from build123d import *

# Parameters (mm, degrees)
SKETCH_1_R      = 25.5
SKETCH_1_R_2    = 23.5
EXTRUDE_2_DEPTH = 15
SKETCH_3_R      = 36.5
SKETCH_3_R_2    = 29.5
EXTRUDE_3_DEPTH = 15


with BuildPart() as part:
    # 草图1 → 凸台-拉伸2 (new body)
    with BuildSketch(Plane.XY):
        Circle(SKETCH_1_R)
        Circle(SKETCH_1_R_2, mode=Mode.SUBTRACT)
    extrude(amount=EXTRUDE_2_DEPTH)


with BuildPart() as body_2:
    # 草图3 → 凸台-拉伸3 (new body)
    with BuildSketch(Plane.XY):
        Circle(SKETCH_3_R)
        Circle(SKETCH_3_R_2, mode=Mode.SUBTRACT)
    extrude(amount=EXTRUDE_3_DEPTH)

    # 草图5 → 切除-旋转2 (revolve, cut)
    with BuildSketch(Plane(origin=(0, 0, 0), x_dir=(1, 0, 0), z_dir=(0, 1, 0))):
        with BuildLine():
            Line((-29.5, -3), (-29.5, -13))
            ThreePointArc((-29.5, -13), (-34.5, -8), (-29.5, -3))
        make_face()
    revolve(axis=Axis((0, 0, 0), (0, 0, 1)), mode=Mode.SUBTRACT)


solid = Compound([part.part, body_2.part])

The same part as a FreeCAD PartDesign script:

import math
import FreeCAD as App
import Part
import Sketcher
Q = App.Units.Quantity

doc = App.newDocument("Part")
params = doc.addObject("Spreadsheet::Sheet", "Params")
for row, (alias, value) in enumerate([
    ("sketch1_diameter", "51 mm"),
    ("sketch1_diameter2", "47 mm"),
    ("pad1_length", "15 mm"),
    ("sketch2_diameter", "73 mm"),
    ("sketch2_diameter2", "59 mm"),
    ("pad2_length", "15 mm"),
    ("sketch3_radius", "5 mm"),
    ("groove_angle", "360 deg"),
], start=1):
    params.set(f"A{row}", alias)
    params.set(f"B{row}", "=" + value)
    params.setAlias(f"B{row}", alias)

body = doc.addObject("PartDesign::Body", "Body")

# Sketch on XY plane
sketch1 = body.newObject("Sketcher::SketchObject", "Sketch")
sketch1.AttachmentSupport = (doc.getObject("XY_Plane"), [""])
sketch1.MapMode = "FlatFace"
sketch1.addGeometry([
    Part.Circle(App.Vector(0, 0, 0), App.Vector(0, 0, 1), 26),
    Part.Circle(App.Vector(0, 0, 0), App.Vector(0, 0, 1), 24),
], False)
sketch1.addConstraint([
    Sketcher.Constraint("Coincident", 0, 3, -1, 1),
    Sketcher.Constraint("Coincident", 1, 3, -1, 1),
    Sketcher.Constraint("Diameter", 0, Q("51 mm")),
    Sketcher.Constraint("Diameter", 1, Q("47 mm")),
])
sketch1.setExpression("Constraints[2]", "Params.sketch1_diameter")
sketch1.setExpression("Constraints[3]", "Params.sketch1_diameter2")
pad1 = body.newObject("PartDesign::Pad", "Pad")
pad1.Profile = sketch1
pad1.setExpression("Length", "Params.pad1_length")
body2 = doc.addObject("PartDesign::Body", "Body001")

# Sketch on XY plane
sketch2 = body2.newObject("Sketcher::SketchObject", "Sketch001")
sketch2.AttachmentSupport = (doc.getObject("XY_Plane001"), [""])
sketch2.MapMode = "FlatFace"
sketch2.addGeometry([
    Part.Circle(App.Vector(0, 0, 0), App.Vector(0, 0, 1), 36),
    Part.Circle(App.Vector(0, 0, 0), App.Vector(0, 0, 1), 30),
], False)
sketch2.addConstraint([
    Sketcher.Constraint("Coincident", 0, 3, -1, 1),
    Sketcher.Constraint("Coincident", 1, 3, -1, 1),
    Sketcher.Constraint("Diameter", 0, Q("73 mm")),
    Sketcher.Constraint("Diameter", 1, Q("59 mm")),
])
sketch2.setExpression("Constraints[2]", "Params.sketch2_diameter")
sketch2.setExpression("Constraints[3]", "Params.sketch2_diameter2")
pad2 = body2.newObject("PartDesign::Pad", "Pad001")
pad2.Profile = sketch2
pad2.setExpression("Length", "Params.pad2_length")

# Sketch on XZ plane
sketch3 = body2.newObject("Sketcher::SketchObject", "Sketch002")
sketch3.AttachmentSupport = (doc.getObject("XZ_Plane001"), [""])
sketch3.MapMode = "FlatFace"
sketch3.addGeometry([
    Part.LineSegment(App.Vector(-30, 13, 0), App.Vector(-30, 3, 0)),
    Part.ArcOfCircle(Part.Circle(App.Vector(-30, 8, 0), App.Vector(0, 0, 1), 5), math.radians(90), math.radians(270)),
], False)
sketch3.addConstraint([
    Sketcher.Constraint("Coincident", 0, 1, 1, 1),
    Sketcher.Constraint("Coincident", 1, 2, 0, 2),
    Sketcher.Constraint("Vertical", 0),
    Sketcher.Constraint("Vertical", 1, 3, 0, 1),
    Sketcher.Constraint("Radius", 1, Q("5 mm")),
    Sketcher.Constraint("DistanceY", -1, 1, 1, 3, Q("8 mm")),
    Sketcher.Constraint("DistanceX", 1, 3, -1, 1, Q("29.5 mm")),
])
sketch3.setExpression("Constraints[4]", "Params.sketch3_radius")
groove = body2.newObject("PartDesign::Groove", "Groove")
groove.Profile = sketch3
groove.ReferenceAxis = (sketch3, ["V_Axis"])
groove.setExpression("Angle", "Params.groove_angle")

doc.recompute()
